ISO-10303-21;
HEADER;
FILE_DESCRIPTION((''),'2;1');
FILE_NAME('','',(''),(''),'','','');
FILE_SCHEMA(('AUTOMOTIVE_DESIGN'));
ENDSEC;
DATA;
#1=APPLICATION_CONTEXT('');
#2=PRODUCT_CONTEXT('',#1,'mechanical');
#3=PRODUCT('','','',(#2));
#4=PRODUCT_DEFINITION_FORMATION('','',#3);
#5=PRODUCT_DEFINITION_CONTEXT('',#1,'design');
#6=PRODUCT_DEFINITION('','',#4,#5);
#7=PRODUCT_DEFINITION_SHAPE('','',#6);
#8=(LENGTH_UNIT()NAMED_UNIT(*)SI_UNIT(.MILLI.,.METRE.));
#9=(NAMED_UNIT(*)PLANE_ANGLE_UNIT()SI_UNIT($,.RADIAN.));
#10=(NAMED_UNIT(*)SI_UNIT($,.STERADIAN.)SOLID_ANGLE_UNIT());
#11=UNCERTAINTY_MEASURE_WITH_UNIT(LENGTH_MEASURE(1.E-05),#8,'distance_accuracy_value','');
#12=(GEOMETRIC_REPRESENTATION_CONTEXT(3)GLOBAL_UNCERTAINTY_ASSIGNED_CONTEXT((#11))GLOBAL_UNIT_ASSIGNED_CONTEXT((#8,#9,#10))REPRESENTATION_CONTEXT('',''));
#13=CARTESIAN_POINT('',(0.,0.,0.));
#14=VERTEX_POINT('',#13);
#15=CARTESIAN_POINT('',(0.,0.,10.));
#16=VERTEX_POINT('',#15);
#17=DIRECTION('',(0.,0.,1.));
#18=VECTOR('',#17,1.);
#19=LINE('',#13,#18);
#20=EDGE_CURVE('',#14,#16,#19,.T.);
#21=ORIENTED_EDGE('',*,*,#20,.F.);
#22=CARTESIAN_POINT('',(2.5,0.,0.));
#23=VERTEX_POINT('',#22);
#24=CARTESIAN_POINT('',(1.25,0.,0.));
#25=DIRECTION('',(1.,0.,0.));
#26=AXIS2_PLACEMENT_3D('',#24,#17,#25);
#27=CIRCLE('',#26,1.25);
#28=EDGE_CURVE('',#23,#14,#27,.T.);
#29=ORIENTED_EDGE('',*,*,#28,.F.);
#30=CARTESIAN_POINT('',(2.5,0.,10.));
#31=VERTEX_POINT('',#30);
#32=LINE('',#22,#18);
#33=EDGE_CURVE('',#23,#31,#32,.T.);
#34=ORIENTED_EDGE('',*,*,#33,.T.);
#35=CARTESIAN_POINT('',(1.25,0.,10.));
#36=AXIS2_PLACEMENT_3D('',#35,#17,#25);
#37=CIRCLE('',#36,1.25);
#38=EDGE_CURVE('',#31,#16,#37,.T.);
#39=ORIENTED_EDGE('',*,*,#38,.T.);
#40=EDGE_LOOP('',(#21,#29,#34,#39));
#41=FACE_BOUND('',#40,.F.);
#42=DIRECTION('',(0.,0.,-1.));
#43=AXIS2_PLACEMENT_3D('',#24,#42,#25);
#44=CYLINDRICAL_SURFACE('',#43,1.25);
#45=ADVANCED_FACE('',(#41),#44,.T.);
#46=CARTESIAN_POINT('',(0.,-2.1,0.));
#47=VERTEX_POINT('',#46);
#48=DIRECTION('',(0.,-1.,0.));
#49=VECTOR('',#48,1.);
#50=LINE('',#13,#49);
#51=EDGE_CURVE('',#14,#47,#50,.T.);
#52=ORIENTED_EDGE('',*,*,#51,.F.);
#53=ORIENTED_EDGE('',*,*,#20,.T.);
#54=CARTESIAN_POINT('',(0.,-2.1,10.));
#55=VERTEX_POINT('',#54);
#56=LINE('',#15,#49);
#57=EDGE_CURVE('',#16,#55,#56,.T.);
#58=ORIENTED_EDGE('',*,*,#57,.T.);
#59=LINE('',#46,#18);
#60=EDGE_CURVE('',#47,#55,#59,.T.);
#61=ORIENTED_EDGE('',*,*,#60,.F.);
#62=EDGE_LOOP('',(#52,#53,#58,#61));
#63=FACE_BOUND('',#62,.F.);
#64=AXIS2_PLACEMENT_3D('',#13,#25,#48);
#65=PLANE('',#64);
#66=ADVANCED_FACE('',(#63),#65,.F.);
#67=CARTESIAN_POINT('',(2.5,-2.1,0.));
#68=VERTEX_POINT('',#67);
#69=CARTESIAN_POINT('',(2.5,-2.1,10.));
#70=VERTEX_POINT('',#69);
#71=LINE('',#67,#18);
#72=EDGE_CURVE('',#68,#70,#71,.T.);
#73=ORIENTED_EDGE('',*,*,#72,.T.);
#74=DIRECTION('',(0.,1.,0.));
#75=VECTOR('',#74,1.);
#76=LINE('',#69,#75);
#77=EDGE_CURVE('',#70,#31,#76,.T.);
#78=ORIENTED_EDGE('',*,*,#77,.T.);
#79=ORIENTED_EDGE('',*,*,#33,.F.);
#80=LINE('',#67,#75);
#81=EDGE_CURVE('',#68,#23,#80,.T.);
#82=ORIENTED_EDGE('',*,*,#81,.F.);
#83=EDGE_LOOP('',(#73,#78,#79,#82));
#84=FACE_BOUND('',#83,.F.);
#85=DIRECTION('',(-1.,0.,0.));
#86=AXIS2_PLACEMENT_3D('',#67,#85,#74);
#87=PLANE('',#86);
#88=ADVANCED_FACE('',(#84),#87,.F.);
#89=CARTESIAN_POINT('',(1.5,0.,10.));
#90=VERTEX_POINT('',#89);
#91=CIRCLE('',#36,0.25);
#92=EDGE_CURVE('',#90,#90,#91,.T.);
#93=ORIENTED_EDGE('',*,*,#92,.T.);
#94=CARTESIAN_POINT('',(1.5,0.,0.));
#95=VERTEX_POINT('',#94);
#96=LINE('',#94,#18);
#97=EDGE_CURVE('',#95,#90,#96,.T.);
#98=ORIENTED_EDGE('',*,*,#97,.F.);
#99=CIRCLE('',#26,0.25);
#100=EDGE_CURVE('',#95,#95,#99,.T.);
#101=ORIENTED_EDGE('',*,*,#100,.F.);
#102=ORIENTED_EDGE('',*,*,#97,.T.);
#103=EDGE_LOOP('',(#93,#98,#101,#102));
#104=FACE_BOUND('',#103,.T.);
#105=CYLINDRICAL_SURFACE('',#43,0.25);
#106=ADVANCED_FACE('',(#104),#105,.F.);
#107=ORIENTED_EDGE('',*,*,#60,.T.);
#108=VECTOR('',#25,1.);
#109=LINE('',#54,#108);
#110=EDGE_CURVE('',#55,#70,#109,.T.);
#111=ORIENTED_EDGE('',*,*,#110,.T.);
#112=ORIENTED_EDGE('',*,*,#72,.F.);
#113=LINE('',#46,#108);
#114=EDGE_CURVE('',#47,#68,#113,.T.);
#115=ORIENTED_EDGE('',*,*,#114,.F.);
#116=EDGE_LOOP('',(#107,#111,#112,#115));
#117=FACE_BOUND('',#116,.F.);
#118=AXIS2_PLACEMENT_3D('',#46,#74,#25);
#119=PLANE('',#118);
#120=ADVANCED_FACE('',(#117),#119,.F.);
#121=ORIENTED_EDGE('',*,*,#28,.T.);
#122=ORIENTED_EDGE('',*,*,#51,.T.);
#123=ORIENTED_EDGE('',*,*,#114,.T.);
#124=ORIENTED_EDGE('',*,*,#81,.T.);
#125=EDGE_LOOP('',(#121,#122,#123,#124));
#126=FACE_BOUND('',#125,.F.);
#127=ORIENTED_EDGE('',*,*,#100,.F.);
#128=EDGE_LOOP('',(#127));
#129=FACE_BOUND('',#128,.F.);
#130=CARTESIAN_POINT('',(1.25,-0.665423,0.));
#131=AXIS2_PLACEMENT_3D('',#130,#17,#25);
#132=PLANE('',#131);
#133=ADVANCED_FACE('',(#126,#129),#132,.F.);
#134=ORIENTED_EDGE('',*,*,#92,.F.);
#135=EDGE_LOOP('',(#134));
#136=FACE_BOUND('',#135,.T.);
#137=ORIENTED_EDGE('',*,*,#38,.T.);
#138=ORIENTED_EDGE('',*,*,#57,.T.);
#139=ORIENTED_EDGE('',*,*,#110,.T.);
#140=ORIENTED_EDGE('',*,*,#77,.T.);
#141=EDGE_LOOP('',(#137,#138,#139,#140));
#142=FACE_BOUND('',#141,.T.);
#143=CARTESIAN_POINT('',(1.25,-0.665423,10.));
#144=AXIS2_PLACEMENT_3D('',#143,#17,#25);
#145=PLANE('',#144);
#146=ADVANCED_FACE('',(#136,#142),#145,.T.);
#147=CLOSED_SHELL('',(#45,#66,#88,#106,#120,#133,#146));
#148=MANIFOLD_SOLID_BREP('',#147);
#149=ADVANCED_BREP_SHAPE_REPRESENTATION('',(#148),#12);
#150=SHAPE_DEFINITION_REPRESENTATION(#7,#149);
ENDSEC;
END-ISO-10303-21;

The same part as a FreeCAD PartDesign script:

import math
import FreeCAD as App
import Part
import Sketcher

doc = App.newDocument("Part")
body = doc.addObject("PartDesign::Body", "Body")

sketch1 = body.newObject("Sketcher::SketchObject", "Sketch")
sketch1.AttachmentSupport = (doc.getObject("XY_Plane"), [""])
sketch1.MapMode = "FlatFace"
sketch1.addGeometry([
    Part.LineSegment(App.Vector(0, 0, 0), App.Vector(0, -2.1, 0)),
    Part.LineSegment(App.Vector(0, -2.1, 0), App.Vector(2.5, -2.1, 0)),
    Part.LineSegment(App.Vector(2.5, -2.1, 0), App.Vector(2.5, 0, 0)),
    Part.ArcOfCircle(Part.Circle(App.Vector(1.25, 0, 0), App.Vector(0, 0, 1), 1.25), math.radians(0), math.radians(180)),
    Part.Circle(App.Vector(1.25, 0, 0), App.Vector(0, 0, 1), 0.25),
], False)
sketch1.addConstraint([
    Sketcher.Constraint("Coincident", 0, 2, 1, 1),
    Sketcher.Constraint("Coincident", 1, 2, 2, 1),
    Sketcher.Constraint("Tangent", 2, 2, 3, 1),
    Sketcher.Constraint("Tangent", 3, 2, 0, 1),
    Sketcher.Constraint("Vertical", 0),
    Sketcher.Constraint("Horizontal", 1),
    Sketcher.Constraint("Vertical", 2),
    Sketcher.Constraint("Coincident", 3, 2, -1, 1),
    Sketcher.Constraint("Coincident", 4, 3, 3, 3),
    Sketcher.Constraint("Diameter", 4, 0.5),
    Sketcher.Constraint("Radius", 3, 1.25),
    Sketcher.Constraint("DistanceY", 0, 2, 0, 1, 2.1),
])
pad1 = body.newObject("PartDesign::Pad", "Pad")
pad1.Profile = sketch1
pad1.Length = 10

doc.recompute()
